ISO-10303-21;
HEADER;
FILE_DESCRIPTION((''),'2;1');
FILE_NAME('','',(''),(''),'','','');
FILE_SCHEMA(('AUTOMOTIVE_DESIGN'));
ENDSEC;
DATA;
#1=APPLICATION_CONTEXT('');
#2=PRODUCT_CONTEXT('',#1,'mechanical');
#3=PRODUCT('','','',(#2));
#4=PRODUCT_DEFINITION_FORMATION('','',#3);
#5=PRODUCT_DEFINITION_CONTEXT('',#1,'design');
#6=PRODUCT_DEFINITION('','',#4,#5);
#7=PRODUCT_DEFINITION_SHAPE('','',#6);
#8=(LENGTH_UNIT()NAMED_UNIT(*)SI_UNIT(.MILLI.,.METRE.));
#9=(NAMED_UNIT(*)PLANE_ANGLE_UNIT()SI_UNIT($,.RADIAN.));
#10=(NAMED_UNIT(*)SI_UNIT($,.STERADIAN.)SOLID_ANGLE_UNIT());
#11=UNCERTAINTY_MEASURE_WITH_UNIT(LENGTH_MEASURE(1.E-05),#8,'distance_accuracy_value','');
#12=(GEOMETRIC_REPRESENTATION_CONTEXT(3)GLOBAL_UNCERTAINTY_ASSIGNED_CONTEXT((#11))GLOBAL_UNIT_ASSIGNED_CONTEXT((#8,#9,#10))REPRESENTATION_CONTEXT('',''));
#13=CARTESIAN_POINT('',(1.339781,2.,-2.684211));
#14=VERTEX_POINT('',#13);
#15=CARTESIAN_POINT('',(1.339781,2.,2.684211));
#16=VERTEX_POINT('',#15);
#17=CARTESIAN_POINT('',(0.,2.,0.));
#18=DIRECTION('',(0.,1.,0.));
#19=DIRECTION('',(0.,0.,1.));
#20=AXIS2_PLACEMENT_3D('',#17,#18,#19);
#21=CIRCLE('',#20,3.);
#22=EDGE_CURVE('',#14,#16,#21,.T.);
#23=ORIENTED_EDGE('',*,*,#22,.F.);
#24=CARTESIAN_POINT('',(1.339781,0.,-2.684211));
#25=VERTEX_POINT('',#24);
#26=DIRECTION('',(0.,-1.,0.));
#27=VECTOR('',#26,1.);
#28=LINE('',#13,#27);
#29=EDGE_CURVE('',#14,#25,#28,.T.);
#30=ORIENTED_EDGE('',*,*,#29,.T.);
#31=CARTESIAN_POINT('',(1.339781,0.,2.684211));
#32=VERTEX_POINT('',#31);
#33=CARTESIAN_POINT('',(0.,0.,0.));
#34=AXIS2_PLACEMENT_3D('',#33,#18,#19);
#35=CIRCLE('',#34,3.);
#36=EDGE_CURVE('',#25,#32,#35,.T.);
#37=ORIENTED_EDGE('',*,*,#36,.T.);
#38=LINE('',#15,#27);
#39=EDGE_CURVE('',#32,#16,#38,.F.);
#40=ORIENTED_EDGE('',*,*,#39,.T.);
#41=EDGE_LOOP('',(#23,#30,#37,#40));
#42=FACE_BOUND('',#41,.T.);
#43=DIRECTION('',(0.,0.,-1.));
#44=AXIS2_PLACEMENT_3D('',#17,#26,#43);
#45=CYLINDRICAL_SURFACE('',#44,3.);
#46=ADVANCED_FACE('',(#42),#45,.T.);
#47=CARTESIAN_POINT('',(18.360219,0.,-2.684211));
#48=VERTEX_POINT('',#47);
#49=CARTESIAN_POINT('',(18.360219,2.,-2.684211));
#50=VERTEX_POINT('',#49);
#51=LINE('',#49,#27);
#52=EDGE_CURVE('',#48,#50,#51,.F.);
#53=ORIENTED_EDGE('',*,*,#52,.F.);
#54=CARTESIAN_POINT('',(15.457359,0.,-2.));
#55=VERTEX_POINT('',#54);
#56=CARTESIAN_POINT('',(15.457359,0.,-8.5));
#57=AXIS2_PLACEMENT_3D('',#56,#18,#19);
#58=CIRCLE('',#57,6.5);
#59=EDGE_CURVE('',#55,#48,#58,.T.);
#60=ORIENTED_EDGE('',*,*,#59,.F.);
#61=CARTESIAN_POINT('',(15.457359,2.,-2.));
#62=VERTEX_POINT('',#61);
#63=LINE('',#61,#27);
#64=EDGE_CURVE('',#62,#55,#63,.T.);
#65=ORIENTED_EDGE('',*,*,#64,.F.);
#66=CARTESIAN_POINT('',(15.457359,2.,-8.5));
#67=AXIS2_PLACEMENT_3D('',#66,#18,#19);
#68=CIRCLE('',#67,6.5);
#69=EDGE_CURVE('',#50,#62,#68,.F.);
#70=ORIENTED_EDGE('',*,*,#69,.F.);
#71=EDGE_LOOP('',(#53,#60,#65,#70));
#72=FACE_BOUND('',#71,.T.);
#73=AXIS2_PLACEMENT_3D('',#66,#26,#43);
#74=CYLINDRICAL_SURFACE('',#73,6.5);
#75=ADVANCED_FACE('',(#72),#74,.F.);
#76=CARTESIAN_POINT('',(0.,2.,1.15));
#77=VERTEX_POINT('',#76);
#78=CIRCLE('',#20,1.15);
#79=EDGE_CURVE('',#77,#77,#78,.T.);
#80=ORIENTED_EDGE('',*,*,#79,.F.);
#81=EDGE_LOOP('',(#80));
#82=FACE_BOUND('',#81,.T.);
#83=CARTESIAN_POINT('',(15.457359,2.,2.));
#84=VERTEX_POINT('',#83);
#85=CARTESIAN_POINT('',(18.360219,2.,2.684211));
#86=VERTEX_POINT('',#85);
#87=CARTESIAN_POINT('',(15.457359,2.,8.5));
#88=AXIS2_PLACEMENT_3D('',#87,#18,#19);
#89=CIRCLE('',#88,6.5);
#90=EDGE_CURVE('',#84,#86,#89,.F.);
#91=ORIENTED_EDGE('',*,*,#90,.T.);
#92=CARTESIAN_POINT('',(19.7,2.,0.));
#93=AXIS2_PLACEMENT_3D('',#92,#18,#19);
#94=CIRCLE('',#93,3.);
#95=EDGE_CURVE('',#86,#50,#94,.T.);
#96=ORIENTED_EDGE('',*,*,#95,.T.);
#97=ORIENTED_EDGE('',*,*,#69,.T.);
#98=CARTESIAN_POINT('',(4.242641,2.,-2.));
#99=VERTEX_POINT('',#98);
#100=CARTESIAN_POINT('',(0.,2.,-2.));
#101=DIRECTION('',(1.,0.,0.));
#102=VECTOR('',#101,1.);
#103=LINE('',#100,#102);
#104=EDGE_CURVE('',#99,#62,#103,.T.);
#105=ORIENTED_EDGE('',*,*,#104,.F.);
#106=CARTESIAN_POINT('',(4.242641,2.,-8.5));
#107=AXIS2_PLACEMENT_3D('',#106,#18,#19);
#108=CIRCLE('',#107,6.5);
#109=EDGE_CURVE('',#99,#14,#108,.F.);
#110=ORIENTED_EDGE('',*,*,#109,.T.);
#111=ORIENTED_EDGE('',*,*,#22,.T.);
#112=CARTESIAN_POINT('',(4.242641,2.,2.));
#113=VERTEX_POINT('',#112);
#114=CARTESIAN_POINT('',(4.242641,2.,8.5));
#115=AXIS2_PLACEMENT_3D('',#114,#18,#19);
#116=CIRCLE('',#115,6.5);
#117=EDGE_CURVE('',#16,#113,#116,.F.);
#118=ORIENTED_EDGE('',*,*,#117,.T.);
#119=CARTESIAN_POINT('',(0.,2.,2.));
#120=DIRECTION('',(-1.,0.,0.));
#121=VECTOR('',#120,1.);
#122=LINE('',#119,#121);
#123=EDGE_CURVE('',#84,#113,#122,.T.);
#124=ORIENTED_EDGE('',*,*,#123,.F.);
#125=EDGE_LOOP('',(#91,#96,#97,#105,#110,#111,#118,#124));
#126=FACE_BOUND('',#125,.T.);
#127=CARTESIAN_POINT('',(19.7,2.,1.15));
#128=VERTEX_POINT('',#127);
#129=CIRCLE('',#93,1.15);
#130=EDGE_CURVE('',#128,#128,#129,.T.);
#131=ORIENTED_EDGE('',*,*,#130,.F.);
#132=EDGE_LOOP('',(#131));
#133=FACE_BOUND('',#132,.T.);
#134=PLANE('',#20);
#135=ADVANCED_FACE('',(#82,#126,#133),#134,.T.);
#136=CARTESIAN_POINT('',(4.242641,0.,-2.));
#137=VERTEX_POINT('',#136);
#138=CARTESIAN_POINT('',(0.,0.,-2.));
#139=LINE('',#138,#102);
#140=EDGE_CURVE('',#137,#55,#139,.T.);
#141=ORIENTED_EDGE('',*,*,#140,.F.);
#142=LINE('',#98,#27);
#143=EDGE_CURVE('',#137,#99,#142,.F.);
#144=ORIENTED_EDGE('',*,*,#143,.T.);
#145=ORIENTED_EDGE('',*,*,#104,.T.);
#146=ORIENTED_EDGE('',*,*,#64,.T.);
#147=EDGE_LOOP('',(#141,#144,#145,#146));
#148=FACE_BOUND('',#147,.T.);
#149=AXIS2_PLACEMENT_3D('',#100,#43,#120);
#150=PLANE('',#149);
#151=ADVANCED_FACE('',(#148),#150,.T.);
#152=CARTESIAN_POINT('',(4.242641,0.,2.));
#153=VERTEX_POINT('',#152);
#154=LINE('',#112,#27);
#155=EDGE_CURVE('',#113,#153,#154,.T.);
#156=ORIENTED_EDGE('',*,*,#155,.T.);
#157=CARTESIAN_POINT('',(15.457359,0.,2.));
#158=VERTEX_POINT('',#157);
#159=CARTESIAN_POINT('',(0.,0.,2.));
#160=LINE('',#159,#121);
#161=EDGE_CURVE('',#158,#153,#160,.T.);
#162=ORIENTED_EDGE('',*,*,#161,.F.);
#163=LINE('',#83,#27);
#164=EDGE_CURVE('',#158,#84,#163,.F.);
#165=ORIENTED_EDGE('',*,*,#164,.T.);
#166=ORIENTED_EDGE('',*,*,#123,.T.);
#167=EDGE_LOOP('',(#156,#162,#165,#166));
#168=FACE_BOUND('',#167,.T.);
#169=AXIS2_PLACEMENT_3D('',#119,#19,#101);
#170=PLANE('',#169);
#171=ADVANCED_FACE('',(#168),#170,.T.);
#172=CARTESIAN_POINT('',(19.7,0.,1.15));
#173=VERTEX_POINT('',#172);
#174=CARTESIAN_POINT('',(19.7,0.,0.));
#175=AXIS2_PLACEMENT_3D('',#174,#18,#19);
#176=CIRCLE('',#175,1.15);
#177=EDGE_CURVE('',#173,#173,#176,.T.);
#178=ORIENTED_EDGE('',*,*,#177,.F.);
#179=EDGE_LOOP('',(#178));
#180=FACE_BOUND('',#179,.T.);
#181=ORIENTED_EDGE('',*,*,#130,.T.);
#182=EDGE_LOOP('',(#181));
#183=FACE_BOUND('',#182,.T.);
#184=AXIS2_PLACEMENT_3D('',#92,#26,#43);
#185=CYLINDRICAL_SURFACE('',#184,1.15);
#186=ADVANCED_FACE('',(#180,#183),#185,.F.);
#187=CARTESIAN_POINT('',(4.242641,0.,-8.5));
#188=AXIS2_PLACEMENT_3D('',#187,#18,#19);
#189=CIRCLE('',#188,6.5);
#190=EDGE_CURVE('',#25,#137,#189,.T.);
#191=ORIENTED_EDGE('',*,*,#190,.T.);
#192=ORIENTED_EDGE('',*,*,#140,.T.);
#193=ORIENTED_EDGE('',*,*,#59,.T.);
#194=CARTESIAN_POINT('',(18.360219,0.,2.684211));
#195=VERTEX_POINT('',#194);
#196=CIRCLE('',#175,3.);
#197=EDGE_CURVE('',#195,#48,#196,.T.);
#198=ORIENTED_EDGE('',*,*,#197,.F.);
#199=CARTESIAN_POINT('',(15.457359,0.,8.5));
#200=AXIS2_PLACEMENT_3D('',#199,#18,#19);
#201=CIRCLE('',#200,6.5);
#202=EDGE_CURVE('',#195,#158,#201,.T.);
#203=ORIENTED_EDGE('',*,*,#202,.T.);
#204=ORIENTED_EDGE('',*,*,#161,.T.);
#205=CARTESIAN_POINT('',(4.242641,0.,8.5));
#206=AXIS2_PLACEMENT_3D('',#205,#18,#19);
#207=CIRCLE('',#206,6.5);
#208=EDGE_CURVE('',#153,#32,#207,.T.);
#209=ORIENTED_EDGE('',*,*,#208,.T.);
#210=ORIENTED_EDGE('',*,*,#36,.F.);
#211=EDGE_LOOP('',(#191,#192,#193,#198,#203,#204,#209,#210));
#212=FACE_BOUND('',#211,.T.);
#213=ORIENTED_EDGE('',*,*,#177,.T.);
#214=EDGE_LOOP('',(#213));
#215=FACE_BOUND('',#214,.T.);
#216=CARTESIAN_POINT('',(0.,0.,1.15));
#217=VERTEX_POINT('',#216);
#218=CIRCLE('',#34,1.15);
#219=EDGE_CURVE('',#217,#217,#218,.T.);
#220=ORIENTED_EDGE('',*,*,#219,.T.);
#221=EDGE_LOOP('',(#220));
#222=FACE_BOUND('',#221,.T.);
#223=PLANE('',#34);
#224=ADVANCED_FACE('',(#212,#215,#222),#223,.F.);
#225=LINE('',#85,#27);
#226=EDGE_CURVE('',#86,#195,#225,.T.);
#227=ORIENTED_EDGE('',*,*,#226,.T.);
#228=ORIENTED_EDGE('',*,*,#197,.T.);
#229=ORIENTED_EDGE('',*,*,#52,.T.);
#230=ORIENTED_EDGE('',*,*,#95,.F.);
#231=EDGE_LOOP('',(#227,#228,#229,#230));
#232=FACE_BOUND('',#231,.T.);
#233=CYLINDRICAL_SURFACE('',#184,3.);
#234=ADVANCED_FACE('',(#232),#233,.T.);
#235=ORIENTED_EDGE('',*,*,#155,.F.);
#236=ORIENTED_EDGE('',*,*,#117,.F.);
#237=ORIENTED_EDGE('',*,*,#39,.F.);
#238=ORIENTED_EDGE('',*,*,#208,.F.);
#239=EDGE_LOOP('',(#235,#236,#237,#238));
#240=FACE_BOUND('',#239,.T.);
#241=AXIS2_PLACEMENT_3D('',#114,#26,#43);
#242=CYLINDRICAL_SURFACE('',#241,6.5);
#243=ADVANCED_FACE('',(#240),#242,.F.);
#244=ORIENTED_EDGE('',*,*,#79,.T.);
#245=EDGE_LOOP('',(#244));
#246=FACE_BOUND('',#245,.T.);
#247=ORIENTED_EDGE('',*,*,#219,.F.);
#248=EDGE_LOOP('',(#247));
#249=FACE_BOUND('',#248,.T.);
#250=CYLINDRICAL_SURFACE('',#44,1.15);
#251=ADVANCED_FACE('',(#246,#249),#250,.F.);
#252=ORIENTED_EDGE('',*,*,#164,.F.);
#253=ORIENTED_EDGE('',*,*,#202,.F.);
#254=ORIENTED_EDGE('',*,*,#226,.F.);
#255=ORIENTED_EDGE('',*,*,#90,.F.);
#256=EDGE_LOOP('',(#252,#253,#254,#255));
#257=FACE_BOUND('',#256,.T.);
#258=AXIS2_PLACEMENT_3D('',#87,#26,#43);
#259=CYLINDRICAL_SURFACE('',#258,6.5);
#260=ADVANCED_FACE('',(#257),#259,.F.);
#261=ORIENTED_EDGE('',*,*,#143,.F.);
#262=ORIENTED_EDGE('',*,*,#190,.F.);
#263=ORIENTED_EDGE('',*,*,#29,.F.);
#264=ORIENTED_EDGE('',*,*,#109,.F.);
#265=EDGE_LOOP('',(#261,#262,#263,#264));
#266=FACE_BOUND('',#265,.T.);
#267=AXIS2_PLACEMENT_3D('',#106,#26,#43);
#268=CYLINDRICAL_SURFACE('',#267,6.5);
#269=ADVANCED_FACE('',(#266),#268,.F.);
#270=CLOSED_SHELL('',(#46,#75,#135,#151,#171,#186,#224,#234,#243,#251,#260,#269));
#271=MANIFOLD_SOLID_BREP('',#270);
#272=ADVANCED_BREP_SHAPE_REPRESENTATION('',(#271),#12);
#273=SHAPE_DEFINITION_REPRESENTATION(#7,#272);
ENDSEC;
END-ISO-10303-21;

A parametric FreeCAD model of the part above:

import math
import FreeCAD as App
import Part
import Sketcher
from FreeCAD import Vector
Q = App.Units.Quantity


def edges_at(feature, points):
    """Names of the edges that pass closest to the given points."""
    edges = feature.Shape.Edges
    near = lambda p: min(range(len(edges)), key=lambda i: edges[i].distToShape(Part.Vertex(*p))[0])
    return sorted({f"Edge{near(p) + 1}" for p in points})

doc = App.newDocument("Part")
params = doc.addObject("Spreadsheet::Sheet", "Params")
for row, (alias, value) in enumerate([
    ("sketch1_radius", "3 mm"),
    ("sketch1_diameter", "2.3 mm"),
    ("pad1_length", "2 mm"),
    ("fillet_radius", "6.5 mm"),
], start=1):
    params.set(f"A{row}", alias)
    params.set(f"B{row}", "=" + value)
    params.setAlias(f"B{row}", alias)

body = doc.addObject("PartDesign::Body", "Body")

sketch1 = body.newObject("Sketcher::SketchObject", "Sketch")
sketch1.AttachmentSupport = (doc.getObject("XZ_Plane"), [""])
sketch1.MapMode = "FlatFace"
sketch1.addGeometry(Part.LineSegment(Vector(17.5, -2, 0), Vector(2.2, -2, 0)), False)
sketch1.addGeometry(Part.ArcOfCircle(Part.Circle(Vector(0, 0, 0), Vector(0, 0, 1), 3), math.radians(42), math.radians(318)), False)
sketch1.addGeometry(Part.LineSegment(Vector(2.2, 2, 0), Vector(17.5, 2, 0)), False)
sketch1.addGeometry(Part.ArcOfCircle(Part.Circle(Vector(19.7, 0, 0), Vector(0, 0, 1), 3), math.radians(-138), math.radians(138)), False)
sketch1.addGeometry(Part.Circle(Vector(19.7, 0, 0), Vector(0, 0, 1), 1.1), False)
sketch1.addGeometry(Part.Circle(Vector(0, 0, 0), Vector(0, 0, 1), 1.1), False)
sketch1.addConstraint(Sketcher.Constraint("Coincident", 0, 2, 1, 2))
sketch1.addConstraint(Sketcher.Constraint("Coincident", 1, 1, 2, 1))
sketch1.addConstraint(Sketcher.Constraint("Coincident", 2, 2, 3, 2))
sketch1.addConstraint(Sketcher.Constraint("Coincident", 3, 1, 0, 1))
sketch1.addConstraint(Sketcher.Constraint("Horizontal", 0))
sketch1.addConstraint(Sketcher.Constraint("Horizontal", 2))
sketch1.addConstraint(Sketcher.Constraint("Coincident", 1, 3, -1, 1))
sketch1.addConstraint(Sketcher.Constraint("Coincident", 5, 3, -1, 1))
sketch1.addConstraint(Sketcher.Constraint("Coincident", 4, 3, 3, 3))
sketch1.addConstraint(Sketcher.Constraint("Equal", 1, 3))
sketch1.addConstraint(Sketcher.Constraint("Equal", 4, 5))
sketch1.addConstraint(Sketcher.Constraint("Symmetric", 2, 2, 3, 1, -1))
sketch1.addConstraint(Sketcher.Constraint("Radius", 1, Q("3 mm")))
sketch1.addConstraint(Sketcher.Constraint("Diameter", 4, Q("2.3 mm")))
sketch1.addConstraint(Sketcher.Constraint("DistanceY", 0, 2, -1, 1, Q("2 mm")))
sketch1.addConstraint(Sketcher.Constraint("DistanceX", -1, 1, 3, 3, Q("19.7 mm")))
sketch1.setExpression("Constraints[12]", "Params.sketch1_radius")
sketch1.setExpression("Constraints[13]", "Params.sketch1_diameter")
pad1 = body.newObject("PartDesign::Pad", "Pad")
pad1.Profile = sketch1
pad1.setExpression("Length", "Params.pad1_length")
pad1.Reversed = True
doc.recompute()

fillet = body.newObject("PartDesign::Fillet", "Fillet")
fillet.Base = (pad1, edges_at(pad1, [
    (2.236, 1, 2),
    (2.236, 1, -2),
    (17.464, 1, -2),
    (17.464, 1, 2),
]))
fillet.setExpression("Radius", "Params.fillet_radius")

doc.recompute()
